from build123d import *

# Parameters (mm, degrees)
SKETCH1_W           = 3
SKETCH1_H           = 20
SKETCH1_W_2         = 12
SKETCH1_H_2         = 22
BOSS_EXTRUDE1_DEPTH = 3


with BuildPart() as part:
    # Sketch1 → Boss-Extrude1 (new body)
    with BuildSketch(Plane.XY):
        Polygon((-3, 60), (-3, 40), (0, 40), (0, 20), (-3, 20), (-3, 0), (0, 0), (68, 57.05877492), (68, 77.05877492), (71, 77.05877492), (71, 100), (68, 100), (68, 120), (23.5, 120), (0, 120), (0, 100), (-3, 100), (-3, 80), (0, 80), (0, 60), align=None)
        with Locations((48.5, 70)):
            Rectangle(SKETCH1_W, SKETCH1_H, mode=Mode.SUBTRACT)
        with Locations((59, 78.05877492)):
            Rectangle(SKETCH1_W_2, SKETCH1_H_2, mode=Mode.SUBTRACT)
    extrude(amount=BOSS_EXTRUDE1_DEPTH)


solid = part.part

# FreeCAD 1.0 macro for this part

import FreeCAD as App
import Part
import Sketcher
Q = App.Units.Quantity


def add_polygon(sketch, points):
    """Adds a closed chain of lines whose ends are joined by coincident constraints."""
    first, n = sketch.GeometryCount, len(points)
    for a, b in zip(points, points[1:] + points[:1]):
        sketch.addGeometry(Part.LineSegment(App.Vector(*a, 0), App.Vector(*b, 0)), False)
    for i in range(n):
        sketch.addConstraint(Sketcher.Constraint("Coincident", first + i, 2, first + (i + 1) % n, 1))

doc = App.newDocument("Part")
params = doc.addObject("Spreadsheet::Sheet", "Params")
for row, (alias, value) in enumerate([
    ("sketch1_width", "3 mm"),
    ("sketch1_width2", "68 mm"),
    ("sketch1_width3", "12 mm"),
    ("sketch1_height", "20 mm"),
    ("sketch1_height2", "22 mm"),
    ("pad1_length", "3 mm"),
], start=1):
    params.set(f"A{row}", alias)
    params.set(f"B{row}", "=" + value)
    params.setAlias(f"B{row}", alias)

body = doc.addObject("PartDesign::Body", "Body")

# Sketch on XY plane
sketch1 = body.newObject("Sketcher::SketchObject", "Sketch")
sketch1.AttachmentSupport = (doc.getObject("XY_Plane"), [""])
sketch1.MapMode = "FlatFace"
add_polygon(sketch1, [(-3, 60), (-3, 40), (0, 40), (0, 20), (-3, 20), (-3, 0), (0, 0), (68, 57.1), (68, 77.1), (71, 77.1), (71, 100), (68, 100), (68, 120), (0, 120), (0, 100), (-3, 100), (-3, 80), (0, 80), (0, 60)])  # lines 0-18
add_polygon(sketch1, [(50, 60), (47, 60), (47, 80), (50, 80)])  # lines 19-22
add_polygon(sketch1, [(65, 67.1), (53, 67.1), (53, 89.1), (65, 89.1)])  # lines 23-26
sketch1.addConstraint([
    Sketcher.Constraint("Vertical", 0),
    Sketcher.Constraint("Horizontal", 1),
    Sketcher.Constraint("Vertical", 2),
    Sketcher.Constraint("Horizontal", 3),
    Sketcher.Constraint("Vertical", 4),
    Sketcher.Constraint("Horizontal", 5),
    Sketcher.Constraint("Vertical", 7),
    Sketcher.Constraint("Horizontal", 8),
    Sketcher.Constraint("Vertical", 9),
    Sketcher.Constraint("Horizontal", 10),
    Sketcher.Constraint("Vertical", 11),
    Sketcher.Constraint("Horizontal", 12),
    Sketcher.Constraint("Vertical", 13),
    Sketcher.Constraint("Horizontal", 14),
    Sketcher.Constraint("Vertical", 15),
    Sketcher.Constraint("Horizontal", 16),
    Sketcher.Constraint("Vertical", 17),
    Sketcher.Constraint("Horizontal", 18),
    Sketcher.Constraint("Horizontal", 19),
    Sketcher.Constraint("Vertical", 20),
    Sketcher.Constraint("Horizontal", 21),
    Sketcher.Constraint("Vertical", 22),
    Sketcher.Constraint("Horizontal", 23),
    Sketcher.Constraint("Vertical", 24),
    Sketcher.Constraint("Horizontal", 25),
    Sketcher.Constraint("Vertical", 26),
    Sketcher.Constraint("Coincident", 5, 2, -1, 1),
    Sketcher.Constraint("PointOnObject", 1, 2, -2),
    Sketcher.Constraint("PointOnObject", 12, 2, -2),
    Sketcher.Constraint("PointOnObject", 16, 2, -2),
    Sketcher.Constraint("Horizontal", 10, 2, 13, 2),
    Sketcher.Constraint("Horizontal", 18, 2, 19, 2),
    Sketcher.Constraint("Horizontal", 16, 2, 20, 2),
    Sketcher.Constraint("Vertical", 0, 2, 3, 2),
    Sketcher.Constraint("Vertical", 7, 2, 10, 2),
    Sketcher.Constraint("Vertical", 4, 2, 14, 2),
    Sketcher.Constraint("Equal", 5, 8),
    Sketcher.Constraint("Equal", 18, 19),
    Sketcher.Constraint("Equal", 0, 2),
    Sketcher.Constraint("Equal", 2, 4),
    Sketcher.Constraint("Equal", 4, 7),
    Sketcher.Constraint("Equal", 7, 11),
    Sketcher.Constraint("Equal", 13, 15),
    Sketcher.Constraint("Equal", 15, 17),
    Sketcher.Constraint("DistanceX", 1, 1, 1, 2, 3.0),
    Sketcher.Constraint("DistanceX", 12, 2, 12, 1, 68.0),
    Sketcher.Constraint("DistanceX", 23, 2, 23, 1, 12.0),
    Sketcher.Constraint("DistanceY", 0, 2, 0, 1, 20.0),
    Sketcher.Constraint("DistanceY", 24, 1, 24, 2, 22.0),
    Sketcher.Constraint("Angle", 6, Q("40 deg")),
    Sketcher.Constraint("DistanceX", -1, 1, 19, 2, 47.0),
    Sketcher.Constraint("DistanceX", -1, 1, 23, 2, 53.0),
    Sketcher.Constraint("DistanceY", 23, 2, 7, 2, 10.0),
])
sketch1.setExpression("Constraints[71]", "Params.sketch1_width")
sketch1.setExpression("Constraints[72]", "Params.sketch1_width2")
sketch1.setExpression("Constraints[73]", "Params.sketch1_width3")
sketch1.setExpression("Constraints[74]", "Params.sketch1_height")
sketch1.setExpression("Constraints[75]", "Params.sketch1_height2")
pad1 = body.newObject("PartDesign::Pad", "Pad")
pad1.Profile = sketch1
pad1.setExpression("Length", "Params.pad1_length")

doc.recompute()
